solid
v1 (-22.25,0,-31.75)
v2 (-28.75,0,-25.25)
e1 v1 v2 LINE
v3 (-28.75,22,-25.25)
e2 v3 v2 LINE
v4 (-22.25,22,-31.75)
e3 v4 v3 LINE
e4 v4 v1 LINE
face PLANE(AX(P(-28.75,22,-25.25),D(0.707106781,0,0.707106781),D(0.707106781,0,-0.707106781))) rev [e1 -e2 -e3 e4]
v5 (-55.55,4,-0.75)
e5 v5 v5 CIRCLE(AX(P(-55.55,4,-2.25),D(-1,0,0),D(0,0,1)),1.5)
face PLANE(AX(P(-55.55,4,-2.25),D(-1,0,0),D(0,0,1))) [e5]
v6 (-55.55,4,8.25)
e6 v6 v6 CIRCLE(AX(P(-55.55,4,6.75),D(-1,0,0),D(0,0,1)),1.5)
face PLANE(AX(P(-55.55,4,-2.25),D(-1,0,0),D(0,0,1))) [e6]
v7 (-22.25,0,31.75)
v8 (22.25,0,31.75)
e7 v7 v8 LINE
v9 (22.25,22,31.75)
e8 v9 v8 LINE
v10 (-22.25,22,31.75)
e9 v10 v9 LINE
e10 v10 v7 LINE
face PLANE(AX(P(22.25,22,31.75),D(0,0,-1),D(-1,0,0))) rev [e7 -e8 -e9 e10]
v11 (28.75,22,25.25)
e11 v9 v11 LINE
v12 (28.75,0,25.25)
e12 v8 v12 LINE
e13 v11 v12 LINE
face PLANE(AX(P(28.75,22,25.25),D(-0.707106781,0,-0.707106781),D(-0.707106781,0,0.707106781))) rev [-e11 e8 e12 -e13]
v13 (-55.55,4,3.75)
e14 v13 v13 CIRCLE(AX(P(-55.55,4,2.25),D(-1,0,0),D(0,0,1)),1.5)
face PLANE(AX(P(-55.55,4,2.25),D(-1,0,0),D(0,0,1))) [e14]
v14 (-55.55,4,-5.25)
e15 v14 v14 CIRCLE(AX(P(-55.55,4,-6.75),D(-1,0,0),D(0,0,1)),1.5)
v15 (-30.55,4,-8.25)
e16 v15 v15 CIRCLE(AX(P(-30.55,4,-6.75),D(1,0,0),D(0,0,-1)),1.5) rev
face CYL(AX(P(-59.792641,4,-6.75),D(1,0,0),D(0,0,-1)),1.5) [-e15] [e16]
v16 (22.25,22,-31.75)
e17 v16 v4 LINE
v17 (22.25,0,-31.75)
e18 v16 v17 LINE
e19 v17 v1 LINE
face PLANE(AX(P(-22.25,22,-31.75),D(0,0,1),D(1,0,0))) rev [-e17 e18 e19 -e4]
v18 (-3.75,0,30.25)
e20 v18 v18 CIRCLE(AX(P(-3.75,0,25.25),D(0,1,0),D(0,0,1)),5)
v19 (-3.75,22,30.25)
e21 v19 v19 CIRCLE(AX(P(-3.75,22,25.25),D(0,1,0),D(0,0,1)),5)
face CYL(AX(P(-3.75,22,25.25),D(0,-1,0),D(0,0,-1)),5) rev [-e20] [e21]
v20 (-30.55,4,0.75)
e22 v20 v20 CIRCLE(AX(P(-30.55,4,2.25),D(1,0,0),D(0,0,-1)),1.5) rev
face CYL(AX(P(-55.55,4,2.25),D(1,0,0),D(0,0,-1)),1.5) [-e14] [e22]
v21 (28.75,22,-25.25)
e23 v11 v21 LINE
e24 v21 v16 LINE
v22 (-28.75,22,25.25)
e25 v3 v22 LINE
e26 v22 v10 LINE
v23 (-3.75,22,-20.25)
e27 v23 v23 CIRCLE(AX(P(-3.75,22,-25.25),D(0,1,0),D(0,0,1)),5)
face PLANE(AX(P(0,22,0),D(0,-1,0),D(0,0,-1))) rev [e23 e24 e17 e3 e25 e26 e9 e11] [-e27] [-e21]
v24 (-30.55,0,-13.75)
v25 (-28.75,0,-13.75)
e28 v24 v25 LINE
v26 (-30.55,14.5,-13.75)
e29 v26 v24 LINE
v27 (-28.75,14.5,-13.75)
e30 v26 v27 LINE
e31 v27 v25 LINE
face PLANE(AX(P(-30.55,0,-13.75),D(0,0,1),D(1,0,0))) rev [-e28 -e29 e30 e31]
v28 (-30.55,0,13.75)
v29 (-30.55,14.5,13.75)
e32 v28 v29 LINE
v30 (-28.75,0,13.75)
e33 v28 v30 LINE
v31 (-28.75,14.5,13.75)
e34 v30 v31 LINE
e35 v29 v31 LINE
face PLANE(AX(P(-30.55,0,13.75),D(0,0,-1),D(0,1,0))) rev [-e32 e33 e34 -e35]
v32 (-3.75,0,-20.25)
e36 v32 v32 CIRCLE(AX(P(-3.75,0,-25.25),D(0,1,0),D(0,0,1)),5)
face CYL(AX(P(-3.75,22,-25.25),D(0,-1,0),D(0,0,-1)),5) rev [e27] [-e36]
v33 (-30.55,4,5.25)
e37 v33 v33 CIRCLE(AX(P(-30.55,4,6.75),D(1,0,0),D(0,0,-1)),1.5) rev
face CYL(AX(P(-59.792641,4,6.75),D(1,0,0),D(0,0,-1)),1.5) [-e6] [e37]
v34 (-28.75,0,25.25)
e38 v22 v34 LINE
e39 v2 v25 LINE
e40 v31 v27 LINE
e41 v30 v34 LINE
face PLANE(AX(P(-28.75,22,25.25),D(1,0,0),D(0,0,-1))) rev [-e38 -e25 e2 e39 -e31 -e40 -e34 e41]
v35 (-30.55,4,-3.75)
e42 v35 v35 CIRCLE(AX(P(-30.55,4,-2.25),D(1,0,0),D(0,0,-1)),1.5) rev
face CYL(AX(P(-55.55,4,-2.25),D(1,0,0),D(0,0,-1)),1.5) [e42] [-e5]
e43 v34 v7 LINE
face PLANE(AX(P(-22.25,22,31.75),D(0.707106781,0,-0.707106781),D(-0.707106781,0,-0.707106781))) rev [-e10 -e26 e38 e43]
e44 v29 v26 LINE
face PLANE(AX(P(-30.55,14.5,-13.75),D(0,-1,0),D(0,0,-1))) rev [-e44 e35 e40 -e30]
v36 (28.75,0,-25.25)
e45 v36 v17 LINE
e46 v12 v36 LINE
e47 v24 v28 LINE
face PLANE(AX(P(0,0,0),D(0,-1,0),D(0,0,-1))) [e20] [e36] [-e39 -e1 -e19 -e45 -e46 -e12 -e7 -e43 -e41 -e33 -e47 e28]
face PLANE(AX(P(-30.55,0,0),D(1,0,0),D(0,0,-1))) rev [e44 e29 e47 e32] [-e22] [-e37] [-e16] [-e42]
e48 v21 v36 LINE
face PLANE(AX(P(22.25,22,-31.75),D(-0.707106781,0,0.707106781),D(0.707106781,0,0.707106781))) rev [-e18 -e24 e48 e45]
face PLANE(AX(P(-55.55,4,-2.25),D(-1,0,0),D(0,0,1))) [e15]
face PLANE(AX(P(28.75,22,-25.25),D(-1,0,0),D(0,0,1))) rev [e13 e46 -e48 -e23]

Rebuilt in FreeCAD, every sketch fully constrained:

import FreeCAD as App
import Part
import Sketcher
Q = App.Units.Quantity


def add_polygon(sketch, points):
    """Adds a closed chain of lines whose ends are joined by coincident constraints."""
    first, n = sketch.GeometryCount, len(points)
    for a, b in zip(points, points[1:] + points[:1]):
        sketch.addGeometry(Part.LineSegment(App.Vector(*a, 0), App.Vector(*b, 0)), False)
    for i in range(n):
        sketch.addConstraint(Sketcher.Constraint("Coincident", first + i, 2, first + (i + 1) % n, 1))

doc = App.newDocument("Part")
body = doc.addObject("PartDesign::Body", "Body")

sketch1 = body.newObject("Sketcher::SketchObject", "Sketch")
sketch1.AttachmentSupport = (doc.getObject("XZ_Plane"), [""])
sketch1.MapMode = "FlatFace"
add_polygon(sketch1, [(-22.25, 31.75), (22.25, 31.75), (28.75, 25.25), (28.75, -25.25), (22.25, -31.75), (-22.25, -31.75), (-28.75, -25.25), (-28.75, 25.25)])
sketch1.addGeometry(Part.Circle(App.Vector(-3.75, 25.25, 0), App.Vector(0, 0, 1), 5), False)
sketch1.addGeometry(Part.Circle(App.Vector(-3.75, -25.25, 0), App.Vector(0, 0, 1), 5), False)
sketch1.addConstraint(Sketcher.Constraint("Horizontal", 0))
sketch1.addConstraint(Sketcher.Constraint("Vertical", 2))
sketch1.addConstraint(Sketcher.Constraint("Horizontal", 4))
sketch1.addConstraint(Sketcher.Constraint("Vertical", 6))
sketch1.addConstraint(Sketcher.Constraint("Equal", 8, 9))
sketch1.addConstraint(Sketcher.Constraint("Symmetric", 0, 2, 4, 2, -1, 1))
sketch1.addConstraint(Sketcher.Constraint("Symmetric", 1, 2, 5, 2, -1, 1))
sketch1.addConstraint(Sketcher.Constraint("Symmetric", 8, 3, 9, 3, -1))
sketch1.addConstraint(Sketcher.Constraint("Perpendicular", 1, 3))
sketch1.addConstraint(Sketcher.Constraint("Perpendicular", 5, 7))
sketch1.addConstraint(Sketcher.Constraint("Horizontal", 8, 3, 1, 2))
sketch1.addConstraint(Sketcher.Constraint("Horizontal", 9, 3, 2, 2))
sketch1.addConstraint(Sketcher.Constraint("Horizontal", 1, 2, 6, 2))
sketch1.addConstraint(Sketcher.Constraint("Vertical", 0, 2, 3, 2))
sketch1.addConstraint(Sketcher.Constraint("Diameter", 8, Q("10 mm")))
sketch1.addConstraint(Sketcher.Constraint("DistanceX", 0, 1, 0, 2, Q("44.5 mm")))
sketch1.addConstraint(Sketcher.Constraint("DistanceY", 2, 2, 2, 1, Q("50.5 mm")))
sketch1.addConstraint(Sketcher.Constraint("DistanceX", 8, 3, 0, 2, Q("26 mm")))
sketch1.addConstraint(Sketcher.Constraint("DistanceY", 9, 3, 0, 2, Q("57 mm")))
pad1 = body.newObject("PartDesign::Pad", "Pad")
pad1.Profile = sketch1
pad1.Length = 22
pad1.Reversed = True

sketch2 = body.newObject("Sketcher::SketchObject", "Sketch001")
sketch2.AttachmentSupport = (doc.getObject("YZ_Plane"), [""])
sketch2.MapMode = "FlatFace"
sketch2.AttachmentOffset = App.Placement(App.Vector(0, 0, -28.75), App.Rotation())
add_polygon(sketch2, [(14.5, -13.75), (0, -13.75), (0, 13.75), (14.5, 13.75)])
sketch2.addConstraint(Sketcher.Constraint("Horizontal", 0))
sketch2.addConstraint(Sketcher.Constraint("Vertical", 1))
sketch2.addConstraint(Sketcher.Constraint("Horizontal", 2))
sketch2.addConstraint(Sketcher.Constraint("Vertical", 3))
sketch2.addConstraint(Sketcher.Constraint("Symmetric", 0, 2, 1, 2, -1, 1))
sketch2.addConstraint(Sketcher.Constraint("DistanceX", 0, 2, 0, 1, Q("14.5 mm")))
sketch2.addConstraint(Sketcher.Constraint("DistanceY", 1, 1, 1, 2, Q("27.5 mm")))
pad2 = body.newObject("PartDesign::Pad", "Pad001")
pad2.Profile = sketch2
pad2.Length = 1.8
pad2.Reversed = True

sketch3 = body.newObject("Sketcher::SketchObject", "Sketch002")
sketch3.AttachmentSupport = (doc.getObject("YZ_Plane"), [""])
sketch3.MapMode = "FlatFace"
sketch3.AttachmentOffset = App.Placement(App.Vector(0, 0, -30.55), App.Rotation())
sketch3.addGeometry(Part.Circle(App.Vector(4, -2.25, 0), App.Vector(0, 0, 1), 1.5), False)
sketch3.addGeometry(Part.Circle(App.Vector(4, 2.25, 0), App.Vector(0, 0, 1), 1.5), False)
sketch3.addConstraint(Sketcher.Constraint("Equal", 0, 1))
sketch3.addConstraint(Sketcher.Constraint("Symmetric", 0, 3, 1, 3, -1))
sketch3.addConstraint(Sketcher.Constraint("Diameter", 0, Q("3 mm")))
sketch3.addConstraint(Sketcher.Constraint("DistanceX", -1, 1, 0, 3, Q("4 mm")))
sketch3.addConstraint(Sketcher.Constraint("DistanceY", 0, 3, 1, 3, Q("4.5 mm")))
pad3 = body.newObject("PartDesign::Pad", "Pad002")
pad3.Profile = sketch3
pad3.Length = 25
pad3.Reversed = True

sketch4 = body.newObject("Sketcher::SketchObject", "Sketch003")
sketch4.AttachmentSupport = (doc.getObject("YZ_Plane"), [""])
sketch4.MapMode = "FlatFace"
sketch4.AttachmentOffset = App.Placement(App.Vector(0, 0, -30.55), App.Rotation())
sketch4.addGeometry(Part.Circle(App.Vector(4, -6.75, 0), App.Vector(0, 0, 1), 1.5), False)
sketch4.addConstraint(Sketcher.Constraint("Diameter", 0, Q("3 mm")))
sketch4.addConstraint(Sketcher.Constraint("DistanceX", -1, 1, 0, 3, Q("4 mm")))
sketch4.addConstraint(Sketcher.Constraint("DistanceY", 0, 3, -1, 1, Q("6.75 mm")))
pad4 = body.newObject("PartDesign::Pad", "Pad003")
pad4.Profile = sketch4
pad4.Length = 25
pad4.Reversed = True

sketch5 = body.newObject("Sketcher::SketchObject", "Sketch004")
sketch5.AttachmentSupport = (doc.getObject("YZ_Plane"), [""])
sketch5.MapMode = "FlatFace"
sketch5.AttachmentOffset = App.Placement(App.Vector(0, 0, -30.55), App.Rotation())
sketch5.addGeometry(Part.Circle(App.Vector(4, 6.75, 0), App.Vector(0, 0, 1), 1.5), False)
sketch5.addConstraint(Sketcher.Constraint("Diameter", 0, Q("3 mm")))
sketch5.addConstraint(Sketcher.Constraint("DistanceX", -1, 1, 0, 3, Q("4 mm")))
sketch5.addConstraint(Sketcher.Constraint("DistanceY", -1, 1, 0, 3, Q("6.75 mm")))
pad5 = body.newObject("PartDesign::Pad", "Pad004")
pad5.Profile = sketch5
pad5.Length = 25
pad5.Reversed = True

doc.recompute()
